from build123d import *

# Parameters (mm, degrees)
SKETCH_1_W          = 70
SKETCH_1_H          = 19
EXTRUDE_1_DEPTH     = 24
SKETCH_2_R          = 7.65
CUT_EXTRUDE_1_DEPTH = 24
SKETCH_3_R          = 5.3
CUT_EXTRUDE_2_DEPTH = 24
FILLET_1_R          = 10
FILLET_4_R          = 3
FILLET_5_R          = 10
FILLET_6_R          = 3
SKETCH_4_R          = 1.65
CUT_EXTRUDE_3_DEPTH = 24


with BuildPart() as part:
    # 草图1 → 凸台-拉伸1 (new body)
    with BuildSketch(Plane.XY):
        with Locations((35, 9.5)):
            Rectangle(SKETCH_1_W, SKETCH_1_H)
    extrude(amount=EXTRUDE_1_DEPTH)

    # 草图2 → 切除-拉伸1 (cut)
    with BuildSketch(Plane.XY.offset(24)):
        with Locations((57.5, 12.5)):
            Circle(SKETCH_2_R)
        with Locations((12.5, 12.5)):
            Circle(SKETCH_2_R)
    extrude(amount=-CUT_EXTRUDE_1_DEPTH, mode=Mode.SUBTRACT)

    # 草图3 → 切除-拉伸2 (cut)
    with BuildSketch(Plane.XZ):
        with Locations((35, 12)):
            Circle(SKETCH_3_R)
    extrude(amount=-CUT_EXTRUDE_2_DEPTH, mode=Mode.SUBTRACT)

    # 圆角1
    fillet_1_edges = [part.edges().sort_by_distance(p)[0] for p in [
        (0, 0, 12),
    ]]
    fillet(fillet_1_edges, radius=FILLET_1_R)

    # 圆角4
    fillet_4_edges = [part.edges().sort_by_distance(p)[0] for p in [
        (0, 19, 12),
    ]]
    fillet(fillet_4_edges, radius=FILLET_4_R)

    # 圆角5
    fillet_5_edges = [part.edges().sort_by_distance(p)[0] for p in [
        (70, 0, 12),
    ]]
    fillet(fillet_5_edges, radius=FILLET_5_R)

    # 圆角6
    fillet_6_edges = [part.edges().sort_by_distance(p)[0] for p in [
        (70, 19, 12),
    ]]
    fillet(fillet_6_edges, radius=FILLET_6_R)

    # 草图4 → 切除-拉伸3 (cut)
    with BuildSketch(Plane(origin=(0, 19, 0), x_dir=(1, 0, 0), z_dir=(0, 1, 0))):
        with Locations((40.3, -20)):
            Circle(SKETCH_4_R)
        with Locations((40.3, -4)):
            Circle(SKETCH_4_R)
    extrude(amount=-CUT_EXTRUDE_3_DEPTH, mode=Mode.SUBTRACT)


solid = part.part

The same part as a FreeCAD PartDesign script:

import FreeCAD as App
import Part
import Sketcher
Q = App.Units.Quantity


def edges_at(feature, points):
    """Names of the edges that pass closest to the given points."""
    edges = feature.Shape.Edges
    near = lambda p: min(range(len(edges)), key=lambda i: edges[i].distToShape(Part.Vertex(*p))[0])
    return sorted({f"Edge{near(p) + 1}" for p in points})


def add_polygon(sketch, points):
    """Adds a closed chain of lines whose ends are joined by coincident constraints."""
    first, n = sketch.GeometryCount, len(points)
    for a, b in zip(points, points[1:] + points[:1]):
        sketch.addGeometry(Part.LineSegment(App.Vector(*a, 0), App.Vector(*b, 0)), False)
    for i in range(n):
        sketch.addConstraint(Sketcher.Constraint("Coincident", first + i, 2, first + (i + 1) % n, 1))

doc = App.newDocument("Part")
body = doc.addObject("PartDesign::Body", "Body")

# Sketch on XY plane
sketch1 = body.newObject("Sketcher::SketchObject", "Sketch")
sketch1.AttachmentSupport = (doc.getObject("XY_Plane"), [""])
sketch1.MapMode = "FlatFace"
add_polygon(sketch1, [(0, 19), (0, 0), (70, 0), (70, 19)])  # lines 0-3
sketch1.addConstraint(Sketcher.Constraint("Vertical", 0))
sketch1.addConstraint(Sketcher.Constraint("Horizontal", 1))
sketch1.addConstraint(Sketcher.Constraint("Vertical", 2))
sketch1.addConstraint(Sketcher.Constraint("Horizontal", 3))
sketch1.addConstraint(Sketcher.Constraint("Coincident", 0, 2, -1, 1))
sketch1.addConstraint(Sketcher.Constraint("DistanceX", 1, 1, 1, 2, Q("70 mm")))
sketch1.addConstraint(Sketcher.Constraint("DistanceY", 0, 2, 0, 1, Q("19 mm")))
pad1 = body.newObject("PartDesign::Pad", "Pad")
pad1.Profile = sketch1
pad1.Length = 24

# Sketch on XY plane
sketch2 = body.newObject("Sketcher::SketchObject", "Sketch001")
sketch2.AttachmentSupport = (doc.getObject("XY_Plane"), [""])
sketch2.MapMode = "FlatFace"
sketch2.AttachmentOffset = App.Placement(App.Vector(0, 0, 24), App.Rotation())
sketch2.addGeometry(Part.Circle(App.Vector(58, 12, 0), App.Vector(0, 0, 1), 8), False)
sketch2.addGeometry(Part.Circle(App.Vector(12, 12, 0), App.Vector(0, 0, 1), 8), False)
sketch2.addConstraint(Sketcher.Constraint("Equal", 0, 1))
sketch2.addConstraint(Sketcher.Constraint("Horizontal", 0, 3, 1, 3))
sketch2.addConstraint(Sketcher.Constraint("Diameter", 0, Q("15.3 mm")))
sketch2.addConstraint(Sketcher.Constraint("DistanceX", 1, 3, 0, 3, Q("45 mm")))
sketch2.addConstraint(Sketcher.Constraint("DistanceX", -1, 1, 0, 3, Q("57.5 mm")))
sketch2.addConstraint(Sketcher.Constraint("DistanceY", -1, 1, 0, 3, Q("12.5 mm")))
pocket1 = body.newObject("PartDesign::Pocket", "Pocket")
pocket1.Profile = sketch2
pocket1.Length = 24

# Sketch on XZ plane
sketch3 = body.newObject("Sketcher::SketchObject", "Sketch002")
sketch3.AttachmentSupport = (doc.getObject("XZ_Plane"), [""])
sketch3.MapMode = "FlatFace"
sketch3.addGeometry(Part.Circle(App.Vector(35, 12, 0), App.Vector(0, 0, 1), 5), False)
sketch3.addConstraint(Sketcher.Constraint("Diameter", 0, Q("10.6 mm")))
sketch3.addConstraint(Sketcher.Constraint("DistanceX", -1, 1, 0, 3, Q("35 mm")))
sketch3.addConstraint(Sketcher.Constraint("DistanceY", -1, 1, 0, 3, Q("12 mm")))
pocket2 = body.newObject("PartDesign::Pocket", "Pocket001")
pocket2.Profile = sketch3
pocket2.Length = 24
doc.recompute()

fillet = body.newObject("PartDesign::Fillet", "Fillet")
fillet.Base = (pocket2, edges_at(pocket2, [(0, 0, 12)]))
fillet.Radius = 10
doc.recompute()

fillet2 = body.newObject("PartDesign::Fillet", "Fillet001")
fillet2.Base = (fillet, edges_at(fillet, [(0, 19, 12)]))
fillet2.Radius = 3
doc.recompute()

fillet3 = body.newObject("PartDesign::Fillet", "Fillet002")
fillet3.Base = (fillet2, edges_at(fillet2, [(70, 0, 12)]))
fillet3.Radius = 10
doc.recompute()

fillet4 = body.newObject("PartDesign::Fillet", "Fillet003")
fillet4.Base = (fillet3, edges_at(fillet3, [(70, 19, 12)]))
fillet4.Radius = 3

# Sketch on XZ plane
sketch4 = body.newObject("Sketcher::SketchObject", "Sketch003")
sketch4.AttachmentSupport = (doc.getObject("XZ_Plane"), [""])
sketch4.MapMode = "FlatFace"
sketch4.AttachmentOffset = App.Placement(App.Vector(0, 0, -19), App.Rotation())
sketch4.addGeometry(Part.Circle(App.Vector(40.3, 20, 0), App.Vector(0, 0, 1), 1.6), False)
sketch4.addGeometry(Part.Circle(App.Vector(40.3, 4, 0), App.Vector(0, 0, 1), 1.6), False)
sketch4.addConstraint(Sketcher.Constraint("Equal", 0, 1))
sketch4.addConstraint(Sketcher.Constraint("Vertical", 0, 3, 1, 3))
sketch4.addConstraint(Sketcher.Constraint("Diameter", 0, Q("3.3 mm")))
sketch4.addConstraint(Sketcher.Constraint("DistanceY", -1, 1, 0, 3, Q("20 mm")))
sketch4.addConstraint(Sketcher.Constraint("DistanceY", -1, 1, 1, 3, Q("4 mm")))
sketch4.addConstraint(Sketcher.Constraint("DistanceX", -1, 1, 0, 3, Q("40.3 mm")))
pocket3 = body.newObject("PartDesign::Pocket", "Pocket002")
pocket3.Profile = sketch4
pocket3.Length = 24
pocket3.Reversed = True

doc.recompute()
